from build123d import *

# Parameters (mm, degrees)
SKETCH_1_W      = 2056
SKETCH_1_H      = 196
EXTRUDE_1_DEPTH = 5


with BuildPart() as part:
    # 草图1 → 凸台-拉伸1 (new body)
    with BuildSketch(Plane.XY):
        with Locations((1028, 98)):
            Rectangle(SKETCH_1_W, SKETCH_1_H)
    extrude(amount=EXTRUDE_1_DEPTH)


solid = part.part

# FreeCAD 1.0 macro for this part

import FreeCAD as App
import Part
import Sketcher

doc = App.newDocument("Part")
body = doc.addObject("PartDesign::Body", "Body")

sketch1 = body.newObject("Sketcher::SketchObject", "Sketch")
sketch1.AttachmentSupport = (doc.getObject("XY_Plane"), [""])
sketch1.MapMode = "FlatFace"
sketch1.addGeometry(Part.LineSegment(App.Vector(0, 196, 0), App.Vector(0, 0, 0)), False)
sketch1.addGeometry(Part.LineSegment(App.Vector(0, 0, 0), App.Vector(2056, 0, 0)), False)
sketch1.addGeometry(Part.LineSegment(App.Vector(2056, 0, 0), App.Vector(2056, 196, 0)), False)
sketch1.addGeometry(Part.LineSegment(App.Vector(2056, 196, 0), App.Vector(0, 196, 0)), False)
sketch1.addConstraint(Sketcher.Constraint("Coincident", 0, 2, 1, 1))
sketch1.addConstraint(Sketcher.Constraint("Coincident", 1, 2, 2, 1))
sketch1.addConstraint(Sketcher.Constraint("Coincident", 2, 2, 3, 1))
sketch1.addConstraint(Sketcher.Constraint("Coincident", 3, 2, 0, 1))
sketch1.addConstraint(Sketcher.Constraint("Vertical", 0))
sketch1.addConstraint(Sketcher.Constraint("Horizontal", 1))
sketch1.addConstraint(Sketcher.Constraint("Vertical", 2))
sketch1.addConstraint(Sketcher.Constraint("Horizontal", 3))
sketch1.addConstraint(Sketcher.Constraint("Coincident", 0, 2, -1, 1))
sketch1.addConstraint(Sketcher.Constraint("DistanceX", 1, 1, 1, 2, 2056.0))
sketch1.addConstraint(Sketcher.Constraint("DistanceY", 0, 2, 0, 1, 196.0))
pad1 = body.newObject("PartDesign::Pad", "Pad")
pad1.Profile = sketch1
pad1.Length = 5

doc.recompute()
